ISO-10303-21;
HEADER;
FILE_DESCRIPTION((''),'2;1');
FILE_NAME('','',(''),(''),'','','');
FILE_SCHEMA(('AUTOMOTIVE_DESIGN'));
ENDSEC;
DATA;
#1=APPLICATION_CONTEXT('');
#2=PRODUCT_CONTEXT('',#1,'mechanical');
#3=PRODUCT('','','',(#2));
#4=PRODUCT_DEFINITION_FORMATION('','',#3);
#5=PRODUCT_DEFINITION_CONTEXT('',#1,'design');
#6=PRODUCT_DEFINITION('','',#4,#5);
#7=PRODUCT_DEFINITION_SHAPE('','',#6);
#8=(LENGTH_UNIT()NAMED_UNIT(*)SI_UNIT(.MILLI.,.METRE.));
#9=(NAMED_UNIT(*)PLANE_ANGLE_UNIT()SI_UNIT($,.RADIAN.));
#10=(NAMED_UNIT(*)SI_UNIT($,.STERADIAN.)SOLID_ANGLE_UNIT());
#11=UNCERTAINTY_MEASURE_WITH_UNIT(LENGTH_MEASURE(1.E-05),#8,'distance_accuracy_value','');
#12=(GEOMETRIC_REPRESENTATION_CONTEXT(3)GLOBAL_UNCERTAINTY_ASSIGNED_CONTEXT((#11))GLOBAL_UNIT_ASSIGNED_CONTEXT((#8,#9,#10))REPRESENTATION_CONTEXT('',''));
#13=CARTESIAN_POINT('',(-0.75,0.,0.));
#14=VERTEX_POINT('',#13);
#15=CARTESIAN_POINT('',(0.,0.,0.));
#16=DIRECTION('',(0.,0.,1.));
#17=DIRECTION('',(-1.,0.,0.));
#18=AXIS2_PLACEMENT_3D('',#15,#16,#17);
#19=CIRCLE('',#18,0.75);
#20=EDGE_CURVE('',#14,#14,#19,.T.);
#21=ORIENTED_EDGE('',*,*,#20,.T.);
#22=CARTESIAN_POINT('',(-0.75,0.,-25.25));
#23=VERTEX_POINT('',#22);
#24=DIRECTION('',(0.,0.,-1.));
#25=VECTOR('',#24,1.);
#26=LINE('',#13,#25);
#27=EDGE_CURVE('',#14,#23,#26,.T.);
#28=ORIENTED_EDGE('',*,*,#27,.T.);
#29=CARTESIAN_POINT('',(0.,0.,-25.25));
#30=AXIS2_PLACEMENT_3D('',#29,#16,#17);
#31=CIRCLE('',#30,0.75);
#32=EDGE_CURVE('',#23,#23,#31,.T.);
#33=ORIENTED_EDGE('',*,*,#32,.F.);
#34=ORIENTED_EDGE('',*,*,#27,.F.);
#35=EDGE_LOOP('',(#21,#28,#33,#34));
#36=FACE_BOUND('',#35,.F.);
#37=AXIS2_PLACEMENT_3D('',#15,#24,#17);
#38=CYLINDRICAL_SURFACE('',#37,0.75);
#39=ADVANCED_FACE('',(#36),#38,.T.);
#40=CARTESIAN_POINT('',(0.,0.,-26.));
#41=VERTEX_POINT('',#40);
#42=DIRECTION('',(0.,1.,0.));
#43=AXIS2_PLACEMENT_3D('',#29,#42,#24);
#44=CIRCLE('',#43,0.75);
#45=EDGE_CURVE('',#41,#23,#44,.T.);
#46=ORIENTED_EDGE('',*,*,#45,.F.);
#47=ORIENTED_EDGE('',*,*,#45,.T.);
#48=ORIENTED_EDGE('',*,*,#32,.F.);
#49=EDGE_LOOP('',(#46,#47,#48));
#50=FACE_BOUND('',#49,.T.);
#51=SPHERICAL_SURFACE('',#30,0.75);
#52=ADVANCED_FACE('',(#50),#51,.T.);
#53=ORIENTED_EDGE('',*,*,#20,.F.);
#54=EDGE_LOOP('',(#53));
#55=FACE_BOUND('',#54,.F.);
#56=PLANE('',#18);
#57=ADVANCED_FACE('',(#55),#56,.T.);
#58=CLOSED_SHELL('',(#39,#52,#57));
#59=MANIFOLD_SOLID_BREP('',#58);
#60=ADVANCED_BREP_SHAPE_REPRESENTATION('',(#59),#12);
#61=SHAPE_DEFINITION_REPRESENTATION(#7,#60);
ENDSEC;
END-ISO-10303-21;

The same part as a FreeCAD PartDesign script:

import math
import FreeCAD as App
import Part
import Sketcher
Q = App.Units.Quantity

doc = App.newDocument("Part")
body = doc.addObject("PartDesign::Body", "Body")

sketch1 = body.newObject("Sketcher::SketchObject", "Sketch")
sketch1.AttachmentSupport = (doc.getObject("XZ_Plane"), [""])
sketch1.MapMode = "FlatFace"
sketch1.addGeometry(Part.LineSegment(App.Vector(-0.75, 0, 0), App.Vector(0, 0, 0)), False)
sketch1.addGeometry(Part.LineSegment(App.Vector(0, 0, 0), App.Vector(0, -26, 0)), False)
sketch1.addGeometry(Part.ArcOfCircle(Part.Circle(App.Vector(0, -25.25, 0), App.Vector(0, 0, 1), 0.75), math.radians(180), math.radians(270)), False)
sketch1.addGeometry(Part.LineSegment(App.Vector(-0.75, -25.25, 0), App.Vector(-0.75, 0, 0)), False)
sketch1.addConstraint(Sketcher.Constraint("Coincident", 0, 2, 1, 1))
sketch1.addConstraint(Sketcher.Constraint("Coincident", 1, 2, 2, 2))
sketch1.addConstraint(Sketcher.Constraint("Tangent", 2, 1, 3, 1))
sketch1.addConstraint(Sketcher.Constraint("Coincident", 3, 2, 0, 1))
sketch1.addConstraint(Sketcher.Constraint("Horizontal", 0))
sketch1.addConstraint(Sketcher.Constraint("Vertical", 1))
sketch1.addConstraint(Sketcher.Constraint("Vertical", 3))
sketch1.addConstraint(Sketcher.Constraint("Coincident", 0, 2, -1, 1))
sketch1.addConstraint(Sketcher.Constraint("PointOnObject", 2, 3, -2))
sketch1.addConstraint(Sketcher.Constraint("DistanceY", 1, 2, 1, 1, Q("26 mm")))
sketch1.addConstraint(Sketcher.Constraint("Radius", 2, Q("0.75 mm")))
revolution = body.newObject("PartDesign::Revolution", "Revolution")
revolution.Profile = sketch1
revolution.ReferenceAxis = (sketch1, ["V_Axis"])
revolution.Angle = 360

doc.recompute()
